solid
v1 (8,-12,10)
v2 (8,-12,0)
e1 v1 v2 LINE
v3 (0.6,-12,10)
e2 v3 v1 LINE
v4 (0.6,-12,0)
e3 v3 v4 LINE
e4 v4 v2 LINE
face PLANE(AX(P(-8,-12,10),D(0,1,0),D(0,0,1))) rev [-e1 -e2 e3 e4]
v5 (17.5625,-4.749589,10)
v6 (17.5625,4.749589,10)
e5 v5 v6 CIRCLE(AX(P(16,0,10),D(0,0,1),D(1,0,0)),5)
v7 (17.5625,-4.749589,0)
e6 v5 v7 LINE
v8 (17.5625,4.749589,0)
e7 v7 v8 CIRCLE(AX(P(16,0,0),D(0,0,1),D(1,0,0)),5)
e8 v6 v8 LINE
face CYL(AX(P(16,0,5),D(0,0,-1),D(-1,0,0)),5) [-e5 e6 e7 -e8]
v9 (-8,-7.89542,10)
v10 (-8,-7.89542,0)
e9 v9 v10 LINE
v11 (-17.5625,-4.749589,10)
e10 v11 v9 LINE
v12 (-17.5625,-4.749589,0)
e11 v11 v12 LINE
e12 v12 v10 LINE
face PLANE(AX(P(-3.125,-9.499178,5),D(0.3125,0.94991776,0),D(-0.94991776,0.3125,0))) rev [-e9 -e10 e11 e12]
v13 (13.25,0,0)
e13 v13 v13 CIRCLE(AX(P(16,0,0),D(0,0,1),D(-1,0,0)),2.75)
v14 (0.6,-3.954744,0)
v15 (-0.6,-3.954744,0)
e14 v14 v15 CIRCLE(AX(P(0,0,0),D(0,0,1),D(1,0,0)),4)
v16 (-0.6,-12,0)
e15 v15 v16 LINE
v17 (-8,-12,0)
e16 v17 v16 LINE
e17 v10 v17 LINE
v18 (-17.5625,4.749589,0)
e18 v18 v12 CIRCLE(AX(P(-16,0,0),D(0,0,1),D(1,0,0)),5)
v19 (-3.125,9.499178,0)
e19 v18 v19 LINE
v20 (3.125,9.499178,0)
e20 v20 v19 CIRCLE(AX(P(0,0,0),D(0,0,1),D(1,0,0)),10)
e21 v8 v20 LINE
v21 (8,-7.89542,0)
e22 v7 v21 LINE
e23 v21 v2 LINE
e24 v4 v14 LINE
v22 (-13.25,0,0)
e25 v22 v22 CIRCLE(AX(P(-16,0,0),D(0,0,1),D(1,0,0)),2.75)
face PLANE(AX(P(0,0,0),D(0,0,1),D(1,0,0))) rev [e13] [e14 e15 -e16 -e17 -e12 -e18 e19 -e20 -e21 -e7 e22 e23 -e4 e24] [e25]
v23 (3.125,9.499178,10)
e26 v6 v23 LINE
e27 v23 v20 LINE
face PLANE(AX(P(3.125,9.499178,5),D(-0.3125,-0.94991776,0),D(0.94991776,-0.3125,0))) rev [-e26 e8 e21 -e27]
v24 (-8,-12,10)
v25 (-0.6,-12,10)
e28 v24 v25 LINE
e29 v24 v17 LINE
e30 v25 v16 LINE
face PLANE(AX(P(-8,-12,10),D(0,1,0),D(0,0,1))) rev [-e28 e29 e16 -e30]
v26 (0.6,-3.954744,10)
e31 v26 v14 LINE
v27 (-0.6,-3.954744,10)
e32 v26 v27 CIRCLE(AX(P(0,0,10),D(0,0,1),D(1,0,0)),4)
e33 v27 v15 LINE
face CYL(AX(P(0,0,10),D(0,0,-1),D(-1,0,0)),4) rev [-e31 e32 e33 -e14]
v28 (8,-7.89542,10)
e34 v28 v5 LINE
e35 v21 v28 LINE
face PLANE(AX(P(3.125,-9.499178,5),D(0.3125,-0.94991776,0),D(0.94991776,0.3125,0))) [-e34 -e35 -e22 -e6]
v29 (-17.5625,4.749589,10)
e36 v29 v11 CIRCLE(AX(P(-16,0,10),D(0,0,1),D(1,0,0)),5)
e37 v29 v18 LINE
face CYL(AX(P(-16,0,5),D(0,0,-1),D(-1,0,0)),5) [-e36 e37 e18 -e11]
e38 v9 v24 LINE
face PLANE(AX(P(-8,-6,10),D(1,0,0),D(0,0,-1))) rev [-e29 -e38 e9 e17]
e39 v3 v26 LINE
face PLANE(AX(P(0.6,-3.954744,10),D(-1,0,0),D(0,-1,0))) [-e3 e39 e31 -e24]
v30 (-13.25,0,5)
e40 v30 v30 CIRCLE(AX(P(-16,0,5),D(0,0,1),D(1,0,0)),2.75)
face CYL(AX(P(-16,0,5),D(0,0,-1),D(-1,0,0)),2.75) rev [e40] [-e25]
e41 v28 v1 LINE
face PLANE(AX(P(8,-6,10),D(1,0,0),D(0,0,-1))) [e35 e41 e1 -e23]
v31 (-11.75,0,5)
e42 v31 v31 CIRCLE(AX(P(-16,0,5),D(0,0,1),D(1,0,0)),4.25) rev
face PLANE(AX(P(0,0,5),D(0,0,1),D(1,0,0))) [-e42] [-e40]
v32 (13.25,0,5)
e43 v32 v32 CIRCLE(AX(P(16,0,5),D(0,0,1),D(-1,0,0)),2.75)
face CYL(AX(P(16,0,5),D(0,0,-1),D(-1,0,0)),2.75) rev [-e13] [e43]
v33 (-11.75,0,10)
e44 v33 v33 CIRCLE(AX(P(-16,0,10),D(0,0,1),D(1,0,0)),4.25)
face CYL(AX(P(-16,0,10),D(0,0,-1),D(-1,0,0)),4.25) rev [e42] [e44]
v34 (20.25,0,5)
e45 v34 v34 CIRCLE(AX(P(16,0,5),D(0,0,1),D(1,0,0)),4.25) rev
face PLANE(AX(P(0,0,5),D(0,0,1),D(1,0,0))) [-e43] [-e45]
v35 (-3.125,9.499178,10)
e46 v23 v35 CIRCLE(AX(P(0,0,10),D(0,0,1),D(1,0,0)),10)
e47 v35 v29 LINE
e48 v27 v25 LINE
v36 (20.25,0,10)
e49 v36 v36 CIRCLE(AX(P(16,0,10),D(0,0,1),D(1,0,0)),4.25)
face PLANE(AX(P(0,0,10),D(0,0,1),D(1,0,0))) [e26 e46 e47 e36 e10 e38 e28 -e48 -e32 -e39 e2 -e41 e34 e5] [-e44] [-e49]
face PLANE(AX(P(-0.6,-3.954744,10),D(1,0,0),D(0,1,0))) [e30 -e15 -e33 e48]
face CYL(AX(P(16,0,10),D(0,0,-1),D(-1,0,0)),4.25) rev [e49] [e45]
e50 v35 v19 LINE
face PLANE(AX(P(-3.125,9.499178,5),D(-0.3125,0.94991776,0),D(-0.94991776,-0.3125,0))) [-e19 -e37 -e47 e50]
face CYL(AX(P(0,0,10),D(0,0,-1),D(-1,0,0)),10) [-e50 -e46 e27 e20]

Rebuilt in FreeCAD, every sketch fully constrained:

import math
import FreeCAD as App
import Part
import Sketcher
from FreeCAD import Vector
Q = App.Units.Quantity

doc = App.newDocument("Part")
body = doc.addObject("PartDesign::Body", "Body")

# Sketch on XY plane
sketch1 = body.newObject("Sketcher::SketchObject", "Sketch")
sketch1.AttachmentSupport = (doc.getObject("XY_Plane"), [""])
sketch1.MapMode = "FlatFace"
sketch1.addGeometry(Part.Circle(Vector(0, 0, 0), Vector(0, 0, 1), 10), False)
sketch1.addGeometry(Part.Circle(Vector(0, 0, 0), Vector(0, 0, 1), 4), False)
sketch1.addConstraint(Sketcher.Constraint("Coincident", 0, 3, -1, 1))
sketch1.addConstraint(Sketcher.Constraint("Coincident", 1, 3, -1, 1))
sketch1.addConstraint(Sketcher.Constraint("Diameter", 0, Q("20 mm")))
sketch1.addConstraint(Sketcher.Constraint("Diameter", 1, Q("8 mm")))
pad1 = body.newObject("PartDesign::Pad", "Pad")
pad1.Profile = sketch1
pad1.Length = 10

# Sketch on XY plane
sketch2 = body.newObject("Sketcher::SketchObject", "Sketch001")
sketch2.AttachmentSupport = (doc.getObject("XY_Plane"), [""])
sketch2.MapMode = "FlatFace"
sketch2.addGeometry(Part.LineSegment(Vector(0, 10, 0), Vector(-22, 10, 0)), False)
sketch2.addGeometry(Part.LineSegment(Vector(-22, 10, 0), Vector(-22, -10, 0)), False)
sketch2.addGeometry(Part.LineSegment(Vector(-22, -10, 0), Vector(0, -10, 0)), False)
sketch2.addGeometry(Part.ArcOfCircle(Part.Circle(Vector(0, 0, 0), Vector(0, 0, 1), 10), math.radians(90), math.radians(270)), False)
sketch2.addGeometry(Part.LineSegment(Vector(22, 10, 0), Vector(0, 10, 0)), False)
sketch2.addGeometry(Part.ArcOfCircle(Part.Circle(Vector(0, 0, 0), Vector(0, 0, 1), 10), math.radians(0), math.radians(90)), False)
sketch2.addGeometry(Part.ArcOfCircle(Part.Circle(Vector(0, 0, 0), Vector(0, 0, 1), 10), math.radians(-90), math.radians(0)), False)
sketch2.addGeometry(Part.LineSegment(Vector(0, -10, 0), Vector(22, -10, 0)), False)
sketch2.addGeometry(Part.LineSegment(Vector(22, -10, 0), Vector(22, 10, 0)), False)
sketch2.addConstraint(Sketcher.Constraint("Coincident", 0, 2, 1, 1))
sketch2.addConstraint(Sketcher.Constraint("Coincident", 1, 2, 2, 1))
sketch2.addConstraint(Sketcher.Constraint("Tangent", 2, 2, 3, 2))
sketch2.addConstraint(Sketcher.Constraint("Tangent", 3, 1, 0, 1))
sketch2.addConstraint(Sketcher.Constraint("Tangent", 4, 2, 5, 2))
sketch2.addConstraint(Sketcher.Constraint("Tangent", 5, 1, 6, 2))
sketch2.addConstraint(Sketcher.Constraint("Tangent", 6, 1, 7, 1))
sketch2.addConstraint(Sketcher.Constraint("Coincident", 7, 2, 8, 1))
sketch2.addConstraint(Sketcher.Constraint("Coincident", 8, 2, 4, 1))
sketch2.addConstraint(Sketcher.Constraint("Horizontal", 0))
sketch2.addConstraint(Sketcher.Constraint("Vertical", 1))
sketch2.addConstraint(Sketcher.Constraint("Horizontal", 2))
sketch2.addConstraint(Sketcher.Constraint("Horizontal", 4))
sketch2.addConstraint(Sketcher.Constraint("Horizontal", 7))
sketch2.addConstraint(Sketcher.Constraint("Vertical", 8))
sketch2.addConstraint(Sketcher.Constraint("Coincident", 3, 3, -1, 1))
sketch2.addConstraint(Sketcher.Constraint("Coincident", 5, 3, -1, 1))
sketch2.addConstraint(Sketcher.Constraint("Coincident", 6, 1, 2, 2))
sketch2.addConstraint(Sketcher.Constraint("PointOnObject", 5, 1, -1))
sketch2.addConstraint(Sketcher.Constraint("Equal", 2, 4))
sketch2.addConstraint(Sketcher.Constraint("Radius", 3, Q("10 mm")))
sketch2.addConstraint(Sketcher.Constraint("DistanceX", 0, 2, 0, 1, Q("21.5 mm")))
pad2 = body.newObject("PartDesign::Pad", "Pad001")
pad2.Profile = sketch2
pad2.Length = 5

# Sketch on XY plane
sketch3 = body.newObject("Sketcher::SketchObject", "Sketch002")
sketch3.AttachmentSupport = (doc.getObject("XY_Plane"), [""])
sketch3.MapMode = "FlatFace"
sketch3.addGeometry(Part.Circle(Vector(-16, 0, 0), Vector(0, 0, 1), 2.8), False)
sketch3.addGeometry(Part.Circle(Vector(16, 0, 0), Vector(0, 0, 1), 2.8), False)
sketch3.addConstraint(Sketcher.Constraint("Equal", 0, 1))
sketch3.addConstraint(Sketcher.Constraint("Symmetric", 0, 3, 1, 3, -1, 1))
sketch3.addConstraint(Sketcher.Constraint("PointOnObject", 0, 3, -1))
sketch3.addConstraint(Sketcher.Constraint("Diameter", 0, Q("5.5 mm")))
sketch3.addConstraint(Sketcher.Constraint("DistanceX", 0, 3, -1, 1, Q("16 mm")))
pocket1 = body.newObject("PartDesign::Pocket", "Pocket")
pocket1.Profile = sketch3
pocket1.Length = 5
pocket1.Reversed = True

# Sketch on XY plane
sketch4 = body.newObject("Sketcher::SketchObject", "Sketch003")
sketch4.AttachmentSupport = (doc.getObject("XY_Plane"), [""])
sketch4.MapMode = "FlatFace"
sketch4.addGeometry(Part.ArcOfCircle(Part.Circle(Vector(-16, 0, 0), Vector(0, 0, 1), 5), math.radians(108), math.radians(252)), False)
sketch4.addGeometry(Part.LineSegment(Vector(-17.6, 4.7, 0), Vector(-3.1, 9.5, 0)), False)
sketch4.addGeometry(Part.ArcOfCircle(Part.Circle(Vector(0, 0, 0), Vector(0, 0, 1), 10), math.radians(90), math.radians(108.21)), False)
sketch4.addGeometry(Part.LineSegment(Vector(0, 10, 0), Vector(-21.5, 10, 0)), False)
sketch4.addGeometry(Part.LineSegment(Vector(-21.5, 10, 0), Vector(-21.5, -10, 0)), False)
sketch4.addGeometry(Part.LineSegment(Vector(-21.5, -10, 0), Vector(0, -10, 0)), False)
sketch4.addGeometry(Part.ArcOfCircle(Part.Circle(Vector(0, 0, 0), Vector(0, 0, 1), 10), math.radians(-108.21), math.radians(-90)), False)
sketch4.addGeometry(Part.LineSegment(Vector(-3.1, -9.5, 0), Vector(-17.6, -4.7, 0)), False)
sketch4.addGeometry(Part.LineSegment(Vector(21.5, 10, 0), Vector(0, 10, 0)), False)
sketch4.addGeometry(Part.ArcOfCircle(Part.Circle(Vector(0, 0, 0), Vector(0, 0, 1), 10), math.radians(71.79), math.radians(90)), False)
sketch4.addGeometry(Part.LineSegment(Vector(3.1, 9.5, 0), Vector(17.6, 4.7, 0)), False)
sketch4.addGeometry(Part.ArcOfCircle(Part.Circle(Vector(16, 0, 0), Vector(0, 0, 1), 5), math.radians(0), math.radians(72)), False)
sketch4.addGeometry(Part.ArcOfCircle(Part.Circle(Vector(16, 0, 0), Vector(0, 0, 1), 5), math.radians(-72), math.radians(0)), False)
sketch4.addGeometry(Part.LineSegment(Vector(17.6, -4.7, 0), Vector(3.1, -9.5, 0)), False)
sketch4.addGeometry(Part.ArcOfCircle(Part.Circle(Vector(0, 0, 0), Vector(0, 0, 1), 10), math.radians(-90), math.radians(-71.79)), False)
sketch4.addGeometry(Part.LineSegment(Vector(0, -10, 0), Vector(21.5, -10, 0)), False)
sketch4.addGeometry(Part.LineSegment(Vector(21.5, -10, 0), Vector(21.5, 10, 0)), False)
sketch4.addConstraint(Sketcher.Constraint("Tangent", 0, 1, 1, 1))
sketch4.addConstraint(Sketcher.Constraint("Tangent", 1, 2, 2, 2))
sketch4.addConstraint(Sketcher.Constraint("Tangent", 2, 1, 3, 1))
sketch4.addConstraint(Sketcher.Constraint("Coincident", 3, 2, 4, 1))
sketch4.addConstraint(Sketcher.Constraint("Coincident", 4, 2, 5, 1))
sketch4.addConstraint(Sketcher.Constraint("Tangent", 5, 2, 6, 2))
sketch4.addConstraint(Sketcher.Constraint("Tangent", 6, 1, 7, 1))
sketch4.addConstraint(Sketcher.Constraint("Tangent", 7, 2, 0, 2))
sketch4.addConstraint(Sketcher.Constraint("Tangent", 8, 2, 9, 2))
sketch4.addConstraint(Sketcher.Constraint("Tangent", 9, 1, 10, 1))
sketch4.addConstraint(Sketcher.Constraint("Tangent", 10, 2, 11, 2))
sketch4.addConstraint(Sketcher.Constraint("Tangent", 11, 1, 12, 2))
sketch4.addConstraint(Sketcher.Constraint("Tangent", 12, 1, 13, 1))
sketch4.addConstraint(Sketcher.Constraint("Tangent", 13, 2, 14, 2))
sketch4.addConstraint(Sketcher.Constraint("Tangent", 14, 1, 15, 1))
sketch4.addConstraint(Sketcher.Constraint("Coincident", 15, 2, 16, 1))
sketch4.addConstraint(Sketcher.Constraint("Coincident", 16, 2, 8, 1))
sketch4.addConstraint(Sketcher.Constraint("Horizontal", 3))
sketch4.addConstraint(Sketcher.Constraint("Vertical", 4))
sketch4.addConstraint(Sketcher.Constraint("Horizontal", 5))
sketch4.addConstraint(Sketcher.Constraint("Horizontal", 8))
sketch4.addConstraint(Sketcher.Constraint("Horizontal", 15))
sketch4.addConstraint(Sketcher.Constraint("Vertical", 16))
sketch4.addConstraint(Sketcher.Constraint("Coincident", 2, 3, -1, 1))
sketch4.addConstraint(Sketcher.Constraint("Coincident", 6, 3, -1, 1))
sketch4.addConstraint(Sketcher.Constraint("Coincident", 9, 3, -1, 1))
sketch4.addConstraint(Sketcher.Constraint("Coincident", 14, 3, -1, 1))
sketch4.addConstraint(Sketcher.Constraint("Equal", 2, 6))
sketch4.addConstraint(Sketcher.Constraint("Equal", 6, 9))
sketch4.addConstraint(Sketcher.Constraint("Equal", 0, 11))
sketch4.addConstraint(Sketcher.Constraint("Equal", 11, 12))
sketch4.addConstraint(Sketcher.Constraint("Equal", 9, 14))
sketch4.addConstraint(Sketcher.Constraint("Symmetric", 0, 3, 11, 3, -1, 1))
sketch4.addConstraint(Sketcher.Constraint("PointOnObject", 0, 3, -1))
sketch4.addConstraint(Sketcher.Constraint("PointOnObject", 11, 1, -1))
sketch4.addConstraint(Sketcher.Constraint("Equal", 5, 8))
sketch4.addConstraint(Sketcher.Constraint("Radius", 0, Q("5 mm")))
sketch4.addConstraint(Sketcher.Constraint("Radius", 2, Q("10 mm")))
sketch4.addConstraint(Sketcher.Constraint("DistanceX", 3, 2, 3, 1, Q("21.5 mm")))
sketch4.addConstraint(Sketcher.Constraint("DistanceX", 0, 3, -1, 1, Q("16 mm")))
pocket2 = body.newObject("PartDesign::Pocket", "Pocket001")
pocket2.Profile = sketch4
pocket2.Length = 5
pocket2.Reversed = True

# Sketch on XY plane
sketch5 = body.newObject("Sketcher::SketchObject", "Sketch004")
sketch5.AttachmentSupport = (doc.getObject("XY_Plane"), [""])
sketch5.MapMode = "FlatFace"
sketch5.addGeometry(Part.LineSegment(Vector(-8, -6, 0), Vector(-8, -12, 0)), False)
sketch5.addGeometry(Part.LineSegment(Vector(-8, -12, 0), Vector(8, -12, 0)), False)
sketch5.addGeometry(Part.LineSegment(Vector(8, -12, 0), Vector(8, -6, 0)), False)
sketch5.addGeometry(Part.ArcOfCircle(Part.Circle(Vector(0, 0, 0), Vector(0, 0, 1), 10), math.radians(-143), math.radians(-37)), False)
sketch5.addConstraint(Sketcher.Constraint("Coincident", 0, 2, 1, 1))
sketch5.addConstraint(Sketcher.Constraint("Coincident", 1, 2, 2, 1))
sketch5.addConstraint(Sketcher.Constraint("Coincident", 2, 2, 3, 2))
sketch5.addConstraint(Sketcher.Constraint("Coincident", 3, 1, 0, 1))
sketch5.addConstraint(Sketcher.Constraint("Vertical", 0))
sketch5.addConstraint(Sketcher.Constraint("Horizontal", 1))
sketch5.addConstraint(Sketcher.Constraint("Vertical", 2))
sketch5.addConstraint(Sketcher.Constraint("Coincident", 3, 3, -1, 1))
sketch5.addConstraint(Sketcher.Constraint("Horizontal", 2, 2, 3, 1))
sketch5.addConstraint(Sketcher.Constraint("Radius", 3, Q("10 mm")))
sketch5.addConstraint(Sketcher.Constraint("DistanceX", 1, 1, 1, 2, Q("16 mm")))
sketch5.addConstraint(Sketcher.Constraint("DistanceY", 0, 2, 0, 1, Q("6 mm")))
pad3 = body.newObject("PartDesign::Pad", "Pad002")
pad3.Profile = sketch5
pad3.Length = 10

# Sketch on XY plane
sketch6 = body.newObject("Sketcher::SketchObject", "Sketch005")
sketch6.AttachmentSupport = (doc.getObject("XY_Plane"), [""])
sketch6.MapMode = "FlatFace"
sketch6.addGeometry(Part.LineSegment(Vector(-0.6, -12, 0), Vector(0.6, -12, 0)), False)
sketch6.addGeometry(Part.LineSegment(Vector(0.6, -12, 0), Vector(0.6, -4, 0)), False)
sketch6.addGeometry(Part.ArcOfCircle(Part.Circle(Vector(0, 0, 0), Vector(0, 0, 1), 4), math.radians(-98.63), math.radians(-81.37)), False)
sketch6.addGeometry(Part.LineSegment(Vector(-0.6, -4, 0), Vector(-0.6, -12, 0)), False)
sketch6.addConstraint(Sketcher.Constraint("Coincident", 0, 2, 1, 1))
sketch6.addConstraint(Sketcher.Constraint("Coincident", 1, 2, 2, 2))
sketch6.addConstraint(Sketcher.Constraint("Coincident", 2, 1, 3, 1))
sketch6.addConstraint(Sketcher.Constraint("Coincident", 3, 2, 0, 1))
sketch6.addConstraint(Sketcher.Constraint("Horizontal", 0))
sketch6.addConstraint(Sketcher.Constraint("Vertical", 1))
sketch6.addConstraint(Sketcher.Constraint("Vertical", 3))
sketch6.addConstraint(Sketcher.Constraint("Coincident", 2, 3, -1, 1))
sketch6.addConstraint(Sketcher.Constraint("Horizontal", 1, 2, 2, 1))
sketch6.addConstraint(Sketcher.Constraint("Radius", 2, Q("4 mm")))
sketch6.addConstraint(Sketcher.Constraint("DistanceX", 0, 1, 0, 2, Q("1.2 mm")))
sketch6.addConstraint(Sketcher.Constraint("DistanceY", 0, 2, -1, 1, Q("12 mm")))
pocket3 = body.newObject("PartDesign::Pocket", "Pocket002")
pocket3.Profile = sketch6
pocket3.Type = "ThroughAll"
pocket3.Reversed = True

# Sketch on XY plane
sketch7 = body.newObject("Sketcher::SketchObject", "Sketch006")
sketch7.AttachmentSupport = (doc.getObject("XY_Plane"), [""])
sketch7.MapMode = "FlatFace"
sketch7.AttachmentOffset = App.Placement(Vector(0, 0, 5), App.Rotation())
sketch7.addGeometry(Part.LineSegment(Vector(-17.6, -4.7, 0), Vector(-8, -7.9, 0)), False)
sketch7.addGeometry(Part.LineSegment(Vector(-8, -7.9, 0), Vector(-8, -6, 0)), False)
sketch7.addGeometry(Part.ArcOfCircle(Part.Circle(Vector(0, 0, 0), Vector(0, 0, 1), 10), math.radians(108), math.radians(217)), False)
sketch7.addGeometry(Part.LineSegment(Vector(-3.1, 9.5, 0), Vector(-17.6, 4.7, 0)), False)
sketch7.addGeometry(Part.ArcOfCircle(Part.Circle(Vector(-16, 0, 0), Vector(0, 0, 1), 5), math.radians(108), math.radians(252)), False)
sketch7.addGeometry(Part.Circle(Vector(-16, 0, 0), Vector(0, 0, 1), 4.2), False)
sketch7.addGeometry(Part.LineSegment(Vector(8, -6, 0), Vector(8, -7.9, 0)), False)
sketch7.addGeometry(Part.LineSegment(Vector(8, -7.9, 0), Vector(17.6, -4.7, 0)), False)
sketch7.addGeometry(Part.ArcOfCircle(Part.Circle(Vector(16, 0, 0), Vector(0, 0, 1), 5), math.radians(-72), math.radians(72)), False)
sketch7.addGeometry(Part.LineSegment(Vector(17.6, 4.7, 0), Vector(3.1, 9.5, 0)), False)
sketch7.addGeometry(Part.ArcOfCircle(Part.Circle(Vector(0, 0, 0), Vector(0, 0, 1), 10), math.radians(-37), math.radians(72)), False)
sketch7.addGeometry(Part.Circle(Vector(16, 0, 0), Vector(0, 0, 1), 4.2), False)
sketch7.addConstraint(Sketcher.Constraint("Coincident", 0, 2, 1, 1))
sketch7.addConstraint(Sketcher.Constraint("Coincident", 1, 2, 2, 2))
sketch7.addConstraint(Sketcher.Constraint("Tangent", 2, 1, 3, 1))
sketch7.addConstraint(Sketcher.Constraint("Tangent", 3, 2, 4, 1))
sketch7.addConstraint(Sketcher.Constraint("Tangent", 4, 2, 0, 1))
sketch7.addConstraint(Sketcher.Constraint("Coincident", 6, 2, 7, 1))
sketch7.addConstraint(Sketcher.Constraint("Tangent", 7, 2, 8, 1))
sketch7.addConstraint(Sketcher.Constraint("Tangent", 8, 2, 9, 1))
sketch7.addConstraint(Sketcher.Constraint("Tangent", 9, 2, 10, 2))
sketch7.addConstraint(Sketcher.Constraint("Coincident", 10, 1, 6, 1))
sketch7.addConstraint(Sketcher.Constraint("Vertical", 1))
sketch7.addConstraint(Sketcher.Constraint("Vertical", 6))
sketch7.addConstraint(Sketcher.Constraint("Coincident", 2, 3, -1, 1))
sketch7.addConstraint(Sketcher.Constraint("Coincident", 10, 3, -1, 1))
sketch7.addConstraint(Sketcher.Constraint("Coincident", 5, 3, 4, 3))
sketch7.addConstraint(Sketcher.Constraint("Coincident", 11, 3, 8, 3))
sketch7.addConstraint(Sketcher.Constraint("Equal", 4, 8))
sketch7.addConstraint(Sketcher.Constraint("Equal", 2, 10))
sketch7.addConstraint(Sketcher.Constraint("Equal", 5, 11))
sketch7.addConstraint(Sketcher.Constraint("Symmetric", 4, 3, 8, 3, -1, 1))
sketch7.addConstraint(Sketcher.Constraint("Symmetric", 0, 2, 6, 2, -2))
sketch7.addConstraint(Sketcher.Constraint("Symmetric", 3, 2, 4, 2, -1))
sketch7.addConstraint(Sketcher.Constraint("Radius", 2, Q("10 mm")))
sketch7.addConstraint(Sketcher.Constraint("Radius", 4, Q("5 mm")))
sketch7.addConstraint(Sketcher.Constraint("Diameter", 5, Q("8.5 mm")))
sketch7.addConstraint(Sketcher.Constraint("DistanceX", 4, 3, -1, 1, Q("16 mm")))
sketch7.addConstraint(Sketcher.Constraint("DistanceX", 0, 2, -1, 1, Q("8 mm")))
pad4 = body.newObject("PartDesign::Pad", "Pad003")
pad4.Profile = sketch7
pad4.Length = 5

doc.recompute()
